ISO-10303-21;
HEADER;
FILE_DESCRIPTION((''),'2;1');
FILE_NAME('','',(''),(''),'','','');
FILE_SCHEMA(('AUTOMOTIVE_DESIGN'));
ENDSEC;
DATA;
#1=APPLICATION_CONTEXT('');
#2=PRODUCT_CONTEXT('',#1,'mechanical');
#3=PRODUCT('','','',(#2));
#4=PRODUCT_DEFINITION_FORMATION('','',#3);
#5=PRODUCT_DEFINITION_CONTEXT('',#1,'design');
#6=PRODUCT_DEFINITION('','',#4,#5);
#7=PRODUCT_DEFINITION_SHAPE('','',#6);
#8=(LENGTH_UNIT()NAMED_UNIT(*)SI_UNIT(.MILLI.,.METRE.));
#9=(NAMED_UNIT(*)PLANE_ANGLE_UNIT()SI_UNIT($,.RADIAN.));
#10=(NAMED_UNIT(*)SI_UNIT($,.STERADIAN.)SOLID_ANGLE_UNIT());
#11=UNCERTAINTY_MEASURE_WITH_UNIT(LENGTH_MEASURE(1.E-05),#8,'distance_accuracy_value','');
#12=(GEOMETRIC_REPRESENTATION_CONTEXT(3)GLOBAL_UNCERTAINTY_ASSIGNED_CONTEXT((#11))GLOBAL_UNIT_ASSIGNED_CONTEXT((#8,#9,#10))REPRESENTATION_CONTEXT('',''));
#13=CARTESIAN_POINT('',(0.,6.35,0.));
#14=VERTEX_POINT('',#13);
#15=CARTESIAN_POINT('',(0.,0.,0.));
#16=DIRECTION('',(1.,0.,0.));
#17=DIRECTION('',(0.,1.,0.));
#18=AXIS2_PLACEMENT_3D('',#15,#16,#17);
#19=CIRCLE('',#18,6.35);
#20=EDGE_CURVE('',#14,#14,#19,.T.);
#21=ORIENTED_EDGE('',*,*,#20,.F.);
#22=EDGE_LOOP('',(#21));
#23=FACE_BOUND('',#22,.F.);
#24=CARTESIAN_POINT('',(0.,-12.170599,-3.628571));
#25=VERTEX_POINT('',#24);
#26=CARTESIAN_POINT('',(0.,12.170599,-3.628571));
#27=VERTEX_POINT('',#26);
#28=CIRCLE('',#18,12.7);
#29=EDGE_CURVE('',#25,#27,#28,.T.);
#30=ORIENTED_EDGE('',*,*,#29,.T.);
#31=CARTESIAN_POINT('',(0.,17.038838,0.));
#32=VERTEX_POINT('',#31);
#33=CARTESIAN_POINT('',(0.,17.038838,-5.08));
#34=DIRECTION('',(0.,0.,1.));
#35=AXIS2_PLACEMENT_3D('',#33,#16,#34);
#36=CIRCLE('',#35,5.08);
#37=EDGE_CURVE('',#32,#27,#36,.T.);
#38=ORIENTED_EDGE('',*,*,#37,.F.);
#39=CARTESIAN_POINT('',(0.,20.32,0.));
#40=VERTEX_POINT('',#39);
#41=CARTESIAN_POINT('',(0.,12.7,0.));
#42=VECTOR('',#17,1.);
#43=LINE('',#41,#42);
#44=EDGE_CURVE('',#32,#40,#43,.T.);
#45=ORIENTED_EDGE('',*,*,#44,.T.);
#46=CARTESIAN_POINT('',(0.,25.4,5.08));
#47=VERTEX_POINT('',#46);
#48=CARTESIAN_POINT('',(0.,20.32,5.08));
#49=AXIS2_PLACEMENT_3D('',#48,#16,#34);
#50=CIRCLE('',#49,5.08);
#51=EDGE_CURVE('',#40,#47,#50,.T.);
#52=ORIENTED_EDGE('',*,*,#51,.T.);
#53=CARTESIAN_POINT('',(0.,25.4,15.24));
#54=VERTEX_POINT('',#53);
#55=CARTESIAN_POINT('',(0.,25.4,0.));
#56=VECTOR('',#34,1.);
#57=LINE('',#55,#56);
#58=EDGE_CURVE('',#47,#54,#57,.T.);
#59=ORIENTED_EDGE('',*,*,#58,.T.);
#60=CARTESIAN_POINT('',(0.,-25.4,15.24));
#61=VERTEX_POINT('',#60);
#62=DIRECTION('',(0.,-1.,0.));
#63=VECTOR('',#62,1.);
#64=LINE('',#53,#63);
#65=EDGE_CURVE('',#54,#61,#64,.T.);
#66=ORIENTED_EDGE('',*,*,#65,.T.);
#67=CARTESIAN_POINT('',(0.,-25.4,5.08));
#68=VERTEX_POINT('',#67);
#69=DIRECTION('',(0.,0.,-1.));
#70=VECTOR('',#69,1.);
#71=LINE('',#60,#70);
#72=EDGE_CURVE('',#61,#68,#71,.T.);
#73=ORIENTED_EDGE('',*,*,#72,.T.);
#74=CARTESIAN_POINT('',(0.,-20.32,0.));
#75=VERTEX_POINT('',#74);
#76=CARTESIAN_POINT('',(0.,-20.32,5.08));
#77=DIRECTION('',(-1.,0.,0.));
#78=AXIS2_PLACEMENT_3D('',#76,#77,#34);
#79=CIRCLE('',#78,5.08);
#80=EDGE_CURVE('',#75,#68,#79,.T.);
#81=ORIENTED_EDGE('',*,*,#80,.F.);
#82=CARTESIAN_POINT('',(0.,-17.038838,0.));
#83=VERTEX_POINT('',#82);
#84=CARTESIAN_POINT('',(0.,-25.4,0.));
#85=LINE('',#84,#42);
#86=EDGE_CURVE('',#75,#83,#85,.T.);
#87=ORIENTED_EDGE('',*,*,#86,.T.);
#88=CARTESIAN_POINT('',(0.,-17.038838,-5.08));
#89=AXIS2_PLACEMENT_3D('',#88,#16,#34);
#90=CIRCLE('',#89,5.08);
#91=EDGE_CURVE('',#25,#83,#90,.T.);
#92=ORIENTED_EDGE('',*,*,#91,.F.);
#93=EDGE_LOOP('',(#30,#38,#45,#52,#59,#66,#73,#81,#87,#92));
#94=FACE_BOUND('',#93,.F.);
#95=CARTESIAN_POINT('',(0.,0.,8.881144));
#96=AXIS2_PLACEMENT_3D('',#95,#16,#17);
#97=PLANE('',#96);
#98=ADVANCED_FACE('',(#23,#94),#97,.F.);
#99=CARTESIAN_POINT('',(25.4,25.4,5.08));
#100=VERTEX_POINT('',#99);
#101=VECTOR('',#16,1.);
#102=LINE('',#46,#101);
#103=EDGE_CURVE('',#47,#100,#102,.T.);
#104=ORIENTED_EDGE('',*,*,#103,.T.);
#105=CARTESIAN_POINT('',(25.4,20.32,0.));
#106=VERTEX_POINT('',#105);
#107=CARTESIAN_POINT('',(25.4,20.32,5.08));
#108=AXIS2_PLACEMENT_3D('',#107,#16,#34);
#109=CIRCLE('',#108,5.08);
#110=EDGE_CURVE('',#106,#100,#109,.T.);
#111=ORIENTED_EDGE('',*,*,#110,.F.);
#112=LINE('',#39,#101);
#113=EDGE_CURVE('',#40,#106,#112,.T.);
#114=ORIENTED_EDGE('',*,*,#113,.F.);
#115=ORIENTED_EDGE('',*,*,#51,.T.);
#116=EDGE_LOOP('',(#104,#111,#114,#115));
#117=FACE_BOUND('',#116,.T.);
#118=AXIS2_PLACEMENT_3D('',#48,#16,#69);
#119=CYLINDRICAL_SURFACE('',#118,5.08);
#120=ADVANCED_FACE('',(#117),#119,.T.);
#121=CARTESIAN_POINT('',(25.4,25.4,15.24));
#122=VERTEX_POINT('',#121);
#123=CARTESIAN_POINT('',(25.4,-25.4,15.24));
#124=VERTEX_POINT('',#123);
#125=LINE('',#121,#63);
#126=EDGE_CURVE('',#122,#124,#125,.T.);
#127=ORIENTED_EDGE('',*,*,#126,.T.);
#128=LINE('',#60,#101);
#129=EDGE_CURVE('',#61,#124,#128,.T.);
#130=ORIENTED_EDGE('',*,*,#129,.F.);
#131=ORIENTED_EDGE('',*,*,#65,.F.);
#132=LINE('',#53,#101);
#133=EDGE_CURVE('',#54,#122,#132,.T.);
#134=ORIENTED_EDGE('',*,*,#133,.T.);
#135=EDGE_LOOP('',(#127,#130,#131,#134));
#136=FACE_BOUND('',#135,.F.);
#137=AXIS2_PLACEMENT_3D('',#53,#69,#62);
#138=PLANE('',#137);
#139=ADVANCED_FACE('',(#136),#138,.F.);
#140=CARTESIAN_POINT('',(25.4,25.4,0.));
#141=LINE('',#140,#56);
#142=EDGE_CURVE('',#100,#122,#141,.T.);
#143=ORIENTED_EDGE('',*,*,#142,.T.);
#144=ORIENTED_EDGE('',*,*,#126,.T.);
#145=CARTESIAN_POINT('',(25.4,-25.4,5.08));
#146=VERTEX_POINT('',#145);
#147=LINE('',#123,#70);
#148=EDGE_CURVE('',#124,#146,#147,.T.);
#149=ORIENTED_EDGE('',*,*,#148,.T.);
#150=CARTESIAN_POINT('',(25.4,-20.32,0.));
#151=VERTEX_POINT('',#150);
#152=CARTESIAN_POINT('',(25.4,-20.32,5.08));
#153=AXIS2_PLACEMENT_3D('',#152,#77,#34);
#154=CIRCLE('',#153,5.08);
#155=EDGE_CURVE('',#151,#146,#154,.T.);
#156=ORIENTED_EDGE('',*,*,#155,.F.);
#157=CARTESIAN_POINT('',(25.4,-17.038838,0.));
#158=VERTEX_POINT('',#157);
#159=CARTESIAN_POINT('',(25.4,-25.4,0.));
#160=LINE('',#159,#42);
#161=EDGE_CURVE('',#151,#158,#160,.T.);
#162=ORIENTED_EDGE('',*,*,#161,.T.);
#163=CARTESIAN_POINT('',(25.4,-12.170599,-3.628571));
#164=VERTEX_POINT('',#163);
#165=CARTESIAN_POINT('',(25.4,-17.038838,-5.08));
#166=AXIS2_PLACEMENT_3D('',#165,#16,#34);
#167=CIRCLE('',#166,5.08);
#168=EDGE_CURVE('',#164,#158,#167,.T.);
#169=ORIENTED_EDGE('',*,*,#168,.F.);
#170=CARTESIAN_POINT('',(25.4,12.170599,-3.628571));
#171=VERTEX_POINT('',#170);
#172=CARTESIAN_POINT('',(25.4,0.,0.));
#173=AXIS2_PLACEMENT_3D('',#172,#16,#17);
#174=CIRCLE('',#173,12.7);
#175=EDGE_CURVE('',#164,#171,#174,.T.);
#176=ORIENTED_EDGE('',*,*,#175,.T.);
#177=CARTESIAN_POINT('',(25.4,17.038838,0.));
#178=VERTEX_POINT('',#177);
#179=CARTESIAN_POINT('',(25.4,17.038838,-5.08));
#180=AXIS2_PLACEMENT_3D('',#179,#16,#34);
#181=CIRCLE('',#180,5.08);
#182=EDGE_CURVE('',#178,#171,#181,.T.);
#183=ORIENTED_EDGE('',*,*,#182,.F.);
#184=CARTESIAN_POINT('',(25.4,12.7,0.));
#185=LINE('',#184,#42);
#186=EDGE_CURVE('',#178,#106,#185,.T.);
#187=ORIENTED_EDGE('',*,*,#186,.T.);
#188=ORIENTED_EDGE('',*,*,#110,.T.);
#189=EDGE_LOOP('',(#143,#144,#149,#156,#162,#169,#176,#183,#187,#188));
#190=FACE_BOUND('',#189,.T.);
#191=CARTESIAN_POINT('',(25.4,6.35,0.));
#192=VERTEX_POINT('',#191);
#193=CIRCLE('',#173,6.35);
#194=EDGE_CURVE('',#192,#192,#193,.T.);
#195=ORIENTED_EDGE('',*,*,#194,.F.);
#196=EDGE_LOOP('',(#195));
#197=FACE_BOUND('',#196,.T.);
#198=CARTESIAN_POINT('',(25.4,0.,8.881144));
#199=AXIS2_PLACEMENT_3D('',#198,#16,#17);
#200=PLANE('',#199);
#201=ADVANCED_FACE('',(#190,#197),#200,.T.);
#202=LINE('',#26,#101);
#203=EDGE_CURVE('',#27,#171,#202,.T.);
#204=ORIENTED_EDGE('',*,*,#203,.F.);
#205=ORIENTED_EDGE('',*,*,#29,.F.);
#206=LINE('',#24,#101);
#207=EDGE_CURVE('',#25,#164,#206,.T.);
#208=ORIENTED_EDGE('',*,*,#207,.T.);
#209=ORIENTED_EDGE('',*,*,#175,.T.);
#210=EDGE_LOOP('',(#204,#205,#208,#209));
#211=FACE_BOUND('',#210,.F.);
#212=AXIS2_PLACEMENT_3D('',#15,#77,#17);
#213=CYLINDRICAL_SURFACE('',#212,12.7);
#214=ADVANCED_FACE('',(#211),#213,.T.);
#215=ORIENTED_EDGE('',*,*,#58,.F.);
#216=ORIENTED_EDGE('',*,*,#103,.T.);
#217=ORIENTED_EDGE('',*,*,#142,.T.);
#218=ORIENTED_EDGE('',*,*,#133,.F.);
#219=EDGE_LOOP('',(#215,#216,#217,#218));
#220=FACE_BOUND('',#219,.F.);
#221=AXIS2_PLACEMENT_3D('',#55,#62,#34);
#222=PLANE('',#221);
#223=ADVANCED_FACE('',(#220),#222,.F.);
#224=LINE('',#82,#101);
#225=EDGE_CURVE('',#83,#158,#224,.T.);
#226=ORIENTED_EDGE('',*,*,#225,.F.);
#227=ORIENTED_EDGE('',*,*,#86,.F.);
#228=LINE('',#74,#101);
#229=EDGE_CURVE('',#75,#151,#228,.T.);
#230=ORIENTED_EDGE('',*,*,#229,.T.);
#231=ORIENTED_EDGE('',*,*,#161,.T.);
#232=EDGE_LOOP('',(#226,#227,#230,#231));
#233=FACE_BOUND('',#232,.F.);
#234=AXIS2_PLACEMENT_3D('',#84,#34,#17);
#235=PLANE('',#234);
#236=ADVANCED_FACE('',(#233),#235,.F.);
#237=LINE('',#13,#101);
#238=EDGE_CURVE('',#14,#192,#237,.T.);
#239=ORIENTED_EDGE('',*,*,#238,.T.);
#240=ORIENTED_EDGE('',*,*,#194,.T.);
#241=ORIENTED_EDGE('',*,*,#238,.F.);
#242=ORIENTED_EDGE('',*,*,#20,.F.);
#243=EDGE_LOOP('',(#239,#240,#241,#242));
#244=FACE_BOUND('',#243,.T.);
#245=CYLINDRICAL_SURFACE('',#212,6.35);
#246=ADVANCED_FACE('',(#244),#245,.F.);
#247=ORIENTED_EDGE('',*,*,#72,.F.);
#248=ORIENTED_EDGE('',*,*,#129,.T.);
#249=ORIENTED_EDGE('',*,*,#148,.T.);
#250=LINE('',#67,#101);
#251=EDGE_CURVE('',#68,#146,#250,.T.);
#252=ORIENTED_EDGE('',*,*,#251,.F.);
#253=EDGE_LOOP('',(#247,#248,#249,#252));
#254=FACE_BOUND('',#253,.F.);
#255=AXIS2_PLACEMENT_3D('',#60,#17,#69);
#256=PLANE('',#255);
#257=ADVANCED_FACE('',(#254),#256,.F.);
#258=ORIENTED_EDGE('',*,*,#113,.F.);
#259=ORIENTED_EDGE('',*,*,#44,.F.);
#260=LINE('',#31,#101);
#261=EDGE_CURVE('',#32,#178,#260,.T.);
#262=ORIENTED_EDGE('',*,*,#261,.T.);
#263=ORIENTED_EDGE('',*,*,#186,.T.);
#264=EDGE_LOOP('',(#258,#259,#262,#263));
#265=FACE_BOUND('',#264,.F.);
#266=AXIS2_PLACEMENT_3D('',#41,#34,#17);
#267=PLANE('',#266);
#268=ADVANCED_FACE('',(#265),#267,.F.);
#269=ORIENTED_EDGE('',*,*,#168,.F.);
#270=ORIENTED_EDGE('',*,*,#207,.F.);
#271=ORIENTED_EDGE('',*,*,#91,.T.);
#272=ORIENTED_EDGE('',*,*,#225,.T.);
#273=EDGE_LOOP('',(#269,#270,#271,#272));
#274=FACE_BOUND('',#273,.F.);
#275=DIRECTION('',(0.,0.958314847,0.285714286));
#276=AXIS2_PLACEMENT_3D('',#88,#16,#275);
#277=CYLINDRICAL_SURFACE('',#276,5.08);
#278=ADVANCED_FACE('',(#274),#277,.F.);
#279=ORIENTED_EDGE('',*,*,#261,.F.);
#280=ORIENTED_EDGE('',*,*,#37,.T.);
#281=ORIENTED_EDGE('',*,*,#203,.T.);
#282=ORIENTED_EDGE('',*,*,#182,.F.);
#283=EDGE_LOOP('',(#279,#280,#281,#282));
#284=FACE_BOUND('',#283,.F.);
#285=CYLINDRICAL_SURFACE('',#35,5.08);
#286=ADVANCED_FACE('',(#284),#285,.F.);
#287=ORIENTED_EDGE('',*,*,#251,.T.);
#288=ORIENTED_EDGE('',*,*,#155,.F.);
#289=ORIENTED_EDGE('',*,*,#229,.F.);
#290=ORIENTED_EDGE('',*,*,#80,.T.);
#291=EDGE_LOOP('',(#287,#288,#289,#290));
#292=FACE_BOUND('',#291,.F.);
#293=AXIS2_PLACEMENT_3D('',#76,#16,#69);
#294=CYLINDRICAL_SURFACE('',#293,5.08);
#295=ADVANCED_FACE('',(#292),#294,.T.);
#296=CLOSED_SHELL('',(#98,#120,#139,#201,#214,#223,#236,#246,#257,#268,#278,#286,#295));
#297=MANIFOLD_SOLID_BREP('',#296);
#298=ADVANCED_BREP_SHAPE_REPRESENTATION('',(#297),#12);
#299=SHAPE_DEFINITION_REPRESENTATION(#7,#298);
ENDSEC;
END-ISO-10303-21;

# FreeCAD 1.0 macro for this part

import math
import FreeCAD as App
import Part
import Sketcher
from FreeCAD import Vector
Q = App.Units.Quantity


def edges_at(feature, points):
    """Names of the edges that pass closest to the given points."""
    edges = feature.Shape.Edges
    near = lambda p: min(range(len(edges)), key=lambda i: edges[i].distToShape(Part.Vertex(*p))[0])
    return sorted({f"Edge{near(p) + 1}" for p in points})

doc = App.newDocument("Part")
body = doc.addObject("PartDesign::Body", "Body")

# Sketch on YZ plane
sketch1 = body.newObject("Sketcher::SketchObject", "Sketch")
sketch1.AttachmentSupport = (doc.getObject("YZ_Plane"), [""])
sketch1.MapMode = "FlatFace"
sketch1.addGeometry([
    Part.LineSegment(Vector(13, 0, 0), Vector(25, 0, 0)),  # 0
    Part.LineSegment(Vector(25, 0, 0), Vector(25, 15, 0)),  # 1
    Part.LineSegment(Vector(25, 15, 0), Vector(-25, 15, 0)),  # 2
    Part.LineSegment(Vector(-25, 15, 0), Vector(-25, 0, 0)),  # 3
    Part.LineSegment(Vector(-25, 0, 0), Vector(-13, 0, 0)),  # 4
    Part.ArcOfCircle(Part.Circle(Vector(0, 0, 0), Vector(0, 0, 1), 13), math.radians(180), math.radians(360)),  # 5
    Part.Circle(Vector(0, 0, 0), Vector(0, 0, 1), 6),  # 6
], False)
sketch1.addConstraint([
    Sketcher.Constraint("Coincident", 0, 2, 1, 1),
    Sketcher.Constraint("Coincident", 1, 2, 2, 1),
    Sketcher.Constraint("Coincident", 2, 2, 3, 1),
    Sketcher.Constraint("Coincident", 3, 2, 4, 1),
    Sketcher.Constraint("Coincident", 4, 2, 5, 1),
    Sketcher.Constraint("Coincident", 5, 2, 0, 1),
    Sketcher.Constraint("Horizontal", 0),
    Sketcher.Constraint("Vertical", 1),
    Sketcher.Constraint("Horizontal", 2),
    Sketcher.Constraint("Vertical", 3),
    Sketcher.Constraint("Horizontal", 4),
    Sketcher.Constraint("Coincident", 5, 3, -1, 1),
    Sketcher.Constraint("Coincident", 6, 3, -1, 1),
    Sketcher.Constraint("Symmetric", 0, 2, 3, 2, -1, 1),
    Sketcher.Constraint("PointOnObject", 0, 2, -1),
    Sketcher.Constraint("Diameter", 6, Q("0.5 in")),
    Sketcher.Constraint("Radius", 5, Q("0.5 in")),
    Sketcher.Constraint("DistanceX", 2, 2, 2, 1, Q("2 in")),
    Sketcher.Constraint("DistanceY", 1, 1, 1, 2, Q("0.6 in")),
])
pad1 = body.newObject("PartDesign::Pad", "Pad")
pad1.Profile = sketch1
pad1.Length = Q("1 in")
doc.recompute()

fillet = body.newObject("PartDesign::Fillet", "Fillet")
fillet.Base = (pad1, edges_at(pad1, [
    (12.7, -12.7, 0),
    (12.7, 12.7, 0),
    (12.7, 25.4, 0),
    (12.7, -25.4, 0),
]))
fillet.Radius = Q("0.2 in")

doc.recompute()
